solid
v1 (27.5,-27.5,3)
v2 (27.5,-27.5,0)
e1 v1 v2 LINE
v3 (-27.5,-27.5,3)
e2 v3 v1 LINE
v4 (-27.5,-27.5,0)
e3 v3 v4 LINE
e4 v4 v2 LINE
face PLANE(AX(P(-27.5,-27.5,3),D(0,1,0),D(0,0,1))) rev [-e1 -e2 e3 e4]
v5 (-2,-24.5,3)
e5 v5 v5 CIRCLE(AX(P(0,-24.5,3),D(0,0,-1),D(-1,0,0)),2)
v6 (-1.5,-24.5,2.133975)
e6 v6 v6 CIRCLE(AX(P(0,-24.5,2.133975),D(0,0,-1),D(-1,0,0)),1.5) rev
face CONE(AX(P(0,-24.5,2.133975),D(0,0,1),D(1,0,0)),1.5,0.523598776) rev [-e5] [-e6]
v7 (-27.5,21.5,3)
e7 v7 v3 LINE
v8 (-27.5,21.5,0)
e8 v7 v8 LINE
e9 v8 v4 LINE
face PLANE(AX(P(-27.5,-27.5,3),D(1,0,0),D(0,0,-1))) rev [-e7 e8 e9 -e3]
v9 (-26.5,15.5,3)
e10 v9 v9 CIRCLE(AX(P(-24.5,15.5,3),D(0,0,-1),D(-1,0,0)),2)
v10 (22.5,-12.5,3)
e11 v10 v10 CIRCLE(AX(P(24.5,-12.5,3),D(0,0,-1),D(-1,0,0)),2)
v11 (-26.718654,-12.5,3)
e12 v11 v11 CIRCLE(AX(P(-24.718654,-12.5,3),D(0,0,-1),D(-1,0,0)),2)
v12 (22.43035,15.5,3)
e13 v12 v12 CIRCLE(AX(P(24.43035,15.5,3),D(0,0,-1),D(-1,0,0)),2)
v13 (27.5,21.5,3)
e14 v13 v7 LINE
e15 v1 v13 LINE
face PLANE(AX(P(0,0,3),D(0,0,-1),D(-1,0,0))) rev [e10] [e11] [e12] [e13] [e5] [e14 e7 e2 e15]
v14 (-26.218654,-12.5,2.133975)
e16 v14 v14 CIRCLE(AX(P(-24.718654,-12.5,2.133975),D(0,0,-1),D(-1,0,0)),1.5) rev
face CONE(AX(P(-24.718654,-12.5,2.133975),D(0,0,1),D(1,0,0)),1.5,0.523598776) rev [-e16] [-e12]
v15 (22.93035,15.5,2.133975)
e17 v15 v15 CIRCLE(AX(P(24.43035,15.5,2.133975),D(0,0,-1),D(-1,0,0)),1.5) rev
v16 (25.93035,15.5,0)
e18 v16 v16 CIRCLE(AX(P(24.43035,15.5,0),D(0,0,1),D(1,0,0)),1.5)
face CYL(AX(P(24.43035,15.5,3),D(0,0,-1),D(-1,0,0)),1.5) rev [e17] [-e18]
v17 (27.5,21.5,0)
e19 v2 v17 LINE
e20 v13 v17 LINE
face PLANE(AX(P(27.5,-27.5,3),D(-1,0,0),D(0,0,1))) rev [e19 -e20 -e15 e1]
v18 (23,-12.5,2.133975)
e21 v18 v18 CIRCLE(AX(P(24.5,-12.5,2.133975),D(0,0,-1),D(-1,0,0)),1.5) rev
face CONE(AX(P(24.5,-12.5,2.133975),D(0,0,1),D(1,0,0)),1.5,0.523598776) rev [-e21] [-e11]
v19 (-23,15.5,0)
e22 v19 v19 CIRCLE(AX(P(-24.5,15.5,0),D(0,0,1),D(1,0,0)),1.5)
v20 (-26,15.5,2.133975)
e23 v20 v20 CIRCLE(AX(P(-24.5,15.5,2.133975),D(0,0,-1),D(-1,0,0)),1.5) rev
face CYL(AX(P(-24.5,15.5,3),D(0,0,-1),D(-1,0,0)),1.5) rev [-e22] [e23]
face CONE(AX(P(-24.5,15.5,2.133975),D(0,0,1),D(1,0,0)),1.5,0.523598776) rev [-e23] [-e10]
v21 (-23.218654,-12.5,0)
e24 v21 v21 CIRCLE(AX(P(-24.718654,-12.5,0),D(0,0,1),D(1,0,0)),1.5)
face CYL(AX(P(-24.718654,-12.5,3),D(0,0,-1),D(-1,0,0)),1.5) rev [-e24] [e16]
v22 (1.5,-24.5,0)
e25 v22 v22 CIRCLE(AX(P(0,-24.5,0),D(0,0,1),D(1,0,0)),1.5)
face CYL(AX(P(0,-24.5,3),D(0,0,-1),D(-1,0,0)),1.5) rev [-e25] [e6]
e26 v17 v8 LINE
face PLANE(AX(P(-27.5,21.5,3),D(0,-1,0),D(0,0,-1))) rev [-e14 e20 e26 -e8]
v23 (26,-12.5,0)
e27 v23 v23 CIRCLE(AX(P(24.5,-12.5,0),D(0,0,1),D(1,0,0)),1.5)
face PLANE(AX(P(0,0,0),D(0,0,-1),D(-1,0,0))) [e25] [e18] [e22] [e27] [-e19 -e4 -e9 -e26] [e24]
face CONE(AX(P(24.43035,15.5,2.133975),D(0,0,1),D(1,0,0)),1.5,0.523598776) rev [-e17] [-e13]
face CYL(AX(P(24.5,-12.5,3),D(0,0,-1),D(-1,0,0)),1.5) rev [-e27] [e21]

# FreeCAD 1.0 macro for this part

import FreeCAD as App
import Part
import Sketcher

V = App.Vector


def edges_at(feature, points):
    """Names of the edges that pass closest to the given points."""
    edges = feature.Shape.Edges
    near = lambda p: min(range(len(edges)), key=lambda i: edges[i].distToShape(Part.Vertex(*p))[0])
    return sorted({f"Edge{near(p) + 1}" for p in points})

doc = App.newDocument("Part")
body = doc.addObject("PartDesign::Body", "Body")

sketch1 = body.newObject("Sketcher::SketchObject", "Sketch")
sketch1.AttachmentSupport = (doc.getObject("XY_Plane"), [""])
sketch1.MapMode = "FlatFace"
sketch1.addGeometry([
    Part.LineSegment(V(-27.5, 21.5, 0), V(-27.5, -27.5, 0)),
    Part.LineSegment(V(-27.5, -27.5, 0), V(27.5, -27.5, 0)),
    Part.LineSegment(V(27.5, -27.5, 0), V(27.5, 21.5, 0)),
    Part.LineSegment(V(27.5, 21.5, 0), V(-27.5, 21.5, 0)),
    Part.Circle(V(-24.718654, -12.5, 0), V(0, 0, 1), 1.5),
    Part.Circle(V(0, -24.5, 0), V(0, 0, 1), 1.5),
    Part.Circle(V(24.5, -12.5, 0), V(0, 0, 1), 1.5),
    Part.Circle(V(-24.5, 15.5, 0), V(0, 0, 1), 1.5),
    Part.Circle(V(24.43035, 15.5, 0), V(0, 0, 1), 1.5),
], False)
sketch1.addConstraint([
    Sketcher.Constraint("Coincident", 0, 2, 1, 1),
    Sketcher.Constraint("Coincident", 1, 2, 2, 1),
    Sketcher.Constraint("Coincident", 2, 2, 3, 1),
    Sketcher.Constraint("Coincident", 3, 2, 0, 1),
    Sketcher.Constraint("Vertical", 0),
    Sketcher.Constraint("Horizontal", 1),
    Sketcher.Constraint("Vertical", 2),
    Sketcher.Constraint("Horizontal", 3),
    Sketcher.Constraint("Equal", 4, 5),
    Sketcher.Constraint("Equal", 5, 6),
    Sketcher.Constraint("Equal", 6, 7),
    Sketcher.Constraint("Equal", 7, 8),
    Sketcher.Constraint("PointOnObject", 5, 3, -2),
    Sketcher.Constraint("Horizontal", 4, 3, 6, 3),
    Sketcher.Constraint("Horizontal", 7, 3, 8, 3),
    Sketcher.Constraint("Diameter", 4, 3.0),
    Sketcher.Constraint("DistanceX", 1, 1, 1, 2, 55.0),
    Sketcher.Constraint("DistanceY", 0, 2, 0, 1, 49.0),
    Sketcher.Constraint("DistanceY", 5, 3, 4, 3, 12.0),
    Sketcher.Constraint("DistanceY", 4, 3, 7, 3, 28.0),
    Sketcher.Constraint("DistanceX", 7, 3, 6, 3, 49.0),
    Sketcher.Constraint("DistanceY", 0, 2, 4, 3, 15.0),
    Sketcher.Constraint("DistanceX", 0, 2, 7, 3, 3.0),
    Sketcher.Constraint("DistanceY", 4, 3, -1, 1, 12.5),
    Sketcher.Constraint("DistanceX", -1, 1, 6, 3, 24.5),
    Sketcher.Constraint("DistanceX", -1, 1, 8, 3, 24.43035),
    Sketcher.Constraint("DistanceX", 4, 3, -1, 1, 24.718654),
])
pad1 = body.newObject("PartDesign::Pad", "Pad")
pad1.Profile = sketch1
pad1.Length = 3
doc.recompute()

chamfer = body.newObject("PartDesign::Chamfer", "Chamfer")
chamfer.Base = (pad1, edges_at(pad1, [
    (-26, 15.5, 3),
    (-26.219, -12.5, 3),
    (23, -12.5, 3),
    (22.93, 15.5, 3),
    (-1.5, -24.5, 3),
]))
chamfer.ChamferType = "Two distances"
chamfer.Size = 0.5
chamfer.Size2 = 0.866025
chamfer.FlipDirection = True

doc.recompute()
